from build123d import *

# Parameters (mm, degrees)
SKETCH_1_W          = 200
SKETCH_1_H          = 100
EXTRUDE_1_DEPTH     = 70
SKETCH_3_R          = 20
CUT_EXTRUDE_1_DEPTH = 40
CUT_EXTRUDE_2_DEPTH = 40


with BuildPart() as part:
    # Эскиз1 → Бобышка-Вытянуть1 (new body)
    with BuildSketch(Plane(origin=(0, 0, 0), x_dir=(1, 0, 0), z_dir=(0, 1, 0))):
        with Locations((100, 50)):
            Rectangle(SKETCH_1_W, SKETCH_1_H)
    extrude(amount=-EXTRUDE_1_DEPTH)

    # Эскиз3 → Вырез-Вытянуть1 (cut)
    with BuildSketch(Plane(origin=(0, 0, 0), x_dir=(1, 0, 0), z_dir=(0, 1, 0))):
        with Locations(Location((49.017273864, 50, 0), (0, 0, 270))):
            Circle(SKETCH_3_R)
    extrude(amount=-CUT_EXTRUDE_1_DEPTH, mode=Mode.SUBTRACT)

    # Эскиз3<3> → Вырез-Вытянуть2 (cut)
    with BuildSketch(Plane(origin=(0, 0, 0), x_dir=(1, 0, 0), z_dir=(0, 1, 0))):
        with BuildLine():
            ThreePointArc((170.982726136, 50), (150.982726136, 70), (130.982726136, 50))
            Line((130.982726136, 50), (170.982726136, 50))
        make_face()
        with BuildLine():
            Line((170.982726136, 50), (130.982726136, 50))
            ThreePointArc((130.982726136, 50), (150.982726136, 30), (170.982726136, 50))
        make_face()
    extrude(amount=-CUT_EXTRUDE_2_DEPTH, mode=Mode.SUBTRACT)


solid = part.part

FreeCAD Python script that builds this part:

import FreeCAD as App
import Part
import Sketcher
from FreeCAD import Vector
Q = App.Units.Quantity


def add_polygon(sketch, points):
    """Adds a closed chain of lines whose ends are joined by coincident constraints."""
    first, n = sketch.GeometryCount, len(points)
    for a, b in zip(points, points[1:] + points[:1]):
        sketch.addGeometry(Part.LineSegment(App.Vector(*a, 0), App.Vector(*b, 0)), False)
    for i in range(n):
        sketch.addConstraint(Sketcher.Constraint("Coincident", first + i, 2, first + (i + 1) % n, 1))

doc = App.newDocument("Part")
body = doc.addObject("PartDesign::Body", "Body")

# Sketch on XZ plane
sketch1 = doc.addObject("Sketcher::SketchObject", "Sketch")
body.addObject(sketch1)
sketch1.AttachmentSupport = (doc.XZ_Plane, [""])
sketch1.MapMode = "FlatFace"
add_polygon(sketch1, [(0, -100), (0, 0), (200, 0), (200, -100)])  # lines 0-3
sketch1.addConstraint([
    Sketcher.Constraint("Vertical", 0),
    Sketcher.Constraint("Horizontal", 1),
    Sketcher.Constraint("Vertical", 2),
    Sketcher.Constraint("Horizontal", 3),
    Sketcher.Constraint("Coincident", 0, 2, -1, 1),
    Sketcher.Constraint("DistanceX", 1, 1, 1, 2, Q("200 mm")),
    Sketcher.Constraint("DistanceY", 0, 1, 0, 2, Q("100 mm")),
])
pad1 = doc.addObject("PartDesign::Pad", "Pad")
body.addObject(pad1)
pad1.Profile = sketch1
pad1.Length = 70

# Sketch on XZ plane
sketch2 = doc.addObject("Sketcher::SketchObject", "Sketch001")
body.addObject(sketch2)
sketch2.AttachmentSupport = (doc.XZ_Plane, [""])
sketch2.MapMode = "FlatFace"
sketch2.addGeometry(Part.Circle(Vector(49, -50, 0), Vector(0, 0, 1), 20), False)
sketch2.addConstraint([
    Sketcher.Constraint("Diameter", 0, Q("40 mm")),
    Sketcher.Constraint("DistanceY", 0, 3, -1, 1, Q("50 mm")),
    Sketcher.Constraint("DistanceX", -1, 1, 0, 3, Q("49.017274 mm")),
])
pocket1 = doc.addObject("PartDesign::Pocket", "Pocket")
body.addObject(pocket1)
pocket1.Profile = sketch2
pocket1.Length = 40
pocket1.Reversed = True

# Sketch on XZ plane
sketch3 = doc.addObject("Sketcher::SketchObject", "Sketch002")
body.addObject(sketch3)
sketch3.AttachmentSupport = (doc.XZ_Plane, [""])
sketch3.MapMode = "FlatFace"
sketch3.addGeometry(Part.Circle(Vector(151, -50, 0), Vector(0, 0, 1), 20), False)
sketch3.addConstraint([
    Sketcher.Constraint("Diameter", 0, Q("40 mm")),
    Sketcher.Constraint("DistanceY", 0, 3, -1, 1, Q("50 mm")),
    Sketcher.Constraint("DistanceX", -1, 1, 0, 3, Q("150.982726 mm")),
])
pocket2 = doc.addObject("PartDesign::Pocket", "Pocket001")
body.addObject(pocket2)
pocket2.Profile = sketch3
pocket2.Length = 40
pocket2.Reversed = True

doc.recompute()
